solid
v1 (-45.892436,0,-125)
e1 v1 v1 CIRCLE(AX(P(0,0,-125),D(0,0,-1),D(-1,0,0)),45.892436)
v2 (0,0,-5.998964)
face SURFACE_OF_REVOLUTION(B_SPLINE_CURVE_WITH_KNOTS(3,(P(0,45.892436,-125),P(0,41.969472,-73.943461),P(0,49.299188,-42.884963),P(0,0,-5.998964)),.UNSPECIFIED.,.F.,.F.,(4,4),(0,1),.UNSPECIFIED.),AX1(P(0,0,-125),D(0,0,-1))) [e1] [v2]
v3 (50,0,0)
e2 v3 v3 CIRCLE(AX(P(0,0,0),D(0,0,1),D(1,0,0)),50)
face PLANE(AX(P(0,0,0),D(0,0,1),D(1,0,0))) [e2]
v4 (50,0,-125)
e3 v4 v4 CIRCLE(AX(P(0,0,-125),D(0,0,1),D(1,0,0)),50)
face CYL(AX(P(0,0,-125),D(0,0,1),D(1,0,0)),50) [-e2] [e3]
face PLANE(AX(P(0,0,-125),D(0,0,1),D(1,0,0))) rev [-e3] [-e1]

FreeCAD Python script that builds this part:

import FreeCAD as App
import Part
import Sketcher

doc = App.newDocument("Part")
body = doc.addObject("PartDesign::Body", "Body")

# Sketch on XY plane
sketch1 = doc.addObject("Sketcher::SketchObject", "Sketch")
body.addObject(sketch1)
sketch1.AttachmentSupport = (doc.XY_Plane, [""])
sketch1.MapMode = "FlatFace"
sketch1.addGeometry(Part.Circle(App.Vector(0, 0, 0), App.Vector(0, 0, 1), 50), False)
sketch1.addConstraint(Sketcher.Constraint("Coincident", 0, 3, -1, 1))
sketch1.addConstraint(Sketcher.Constraint("Diameter", 0, 100.0))
pad1 = doc.addObject("PartDesign::Pad", "Pad")
body.addObject(pad1)
pad1.Profile = sketch1
pad1.Length = 125
pad1.Reversed = True

# Sketch on YZ plane
sketch2 = doc.addObject("Sketcher::SketchObject", "Sketch001")
body.addObject(sketch2)
sketch2.AttachmentSupport = (doc.YZ_Plane, [""])
sketch2.MapMode = "FlatFace"
sketch2.addGeometry(Part.LineSegment(App.Vector(0, -5.998964, 0), App.Vector(0, -125, 0)), False)
sketch2.addGeometry(Part.LineSegment(App.Vector(0, -125, 0), App.Vector(45.892436, -125, 0)), False)
sketch2.addGeometry(Part.BSplineCurve([App.Vector(0, -5.998964, 0), App.Vector(49.299188, -42.884963, 0), App.Vector(41.969472, -73.943461, 0), App.Vector(45.892436, -125, 0)], [4, 4], [0, 1], False, 3, [1, 1, 1, 1], False), False)
sketch2.addConstraint(Sketcher.Constraint("Block", 2))
sketch2.addConstraint(Sketcher.Constraint("Coincident", 0, 2, 1, 1))
sketch2.addConstraint(Sketcher.Constraint("Coincident", 1, 2, 2, 2))
sketch2.addConstraint(Sketcher.Constraint("Coincident", 2, 1, 0, 1))
sketch2.addConstraint(Sketcher.Constraint("Vertical", 0))
sketch2.addConstraint(Sketcher.Constraint("Horizontal", 1))
groove = doc.addObject("PartDesign::Groove", "Groove")
body.addObject(groove)
groove.Profile = sketch2
groove.ReferenceAxis = (sketch2, ["V_Axis"])
groove.Angle = 360

doc.recompute()
